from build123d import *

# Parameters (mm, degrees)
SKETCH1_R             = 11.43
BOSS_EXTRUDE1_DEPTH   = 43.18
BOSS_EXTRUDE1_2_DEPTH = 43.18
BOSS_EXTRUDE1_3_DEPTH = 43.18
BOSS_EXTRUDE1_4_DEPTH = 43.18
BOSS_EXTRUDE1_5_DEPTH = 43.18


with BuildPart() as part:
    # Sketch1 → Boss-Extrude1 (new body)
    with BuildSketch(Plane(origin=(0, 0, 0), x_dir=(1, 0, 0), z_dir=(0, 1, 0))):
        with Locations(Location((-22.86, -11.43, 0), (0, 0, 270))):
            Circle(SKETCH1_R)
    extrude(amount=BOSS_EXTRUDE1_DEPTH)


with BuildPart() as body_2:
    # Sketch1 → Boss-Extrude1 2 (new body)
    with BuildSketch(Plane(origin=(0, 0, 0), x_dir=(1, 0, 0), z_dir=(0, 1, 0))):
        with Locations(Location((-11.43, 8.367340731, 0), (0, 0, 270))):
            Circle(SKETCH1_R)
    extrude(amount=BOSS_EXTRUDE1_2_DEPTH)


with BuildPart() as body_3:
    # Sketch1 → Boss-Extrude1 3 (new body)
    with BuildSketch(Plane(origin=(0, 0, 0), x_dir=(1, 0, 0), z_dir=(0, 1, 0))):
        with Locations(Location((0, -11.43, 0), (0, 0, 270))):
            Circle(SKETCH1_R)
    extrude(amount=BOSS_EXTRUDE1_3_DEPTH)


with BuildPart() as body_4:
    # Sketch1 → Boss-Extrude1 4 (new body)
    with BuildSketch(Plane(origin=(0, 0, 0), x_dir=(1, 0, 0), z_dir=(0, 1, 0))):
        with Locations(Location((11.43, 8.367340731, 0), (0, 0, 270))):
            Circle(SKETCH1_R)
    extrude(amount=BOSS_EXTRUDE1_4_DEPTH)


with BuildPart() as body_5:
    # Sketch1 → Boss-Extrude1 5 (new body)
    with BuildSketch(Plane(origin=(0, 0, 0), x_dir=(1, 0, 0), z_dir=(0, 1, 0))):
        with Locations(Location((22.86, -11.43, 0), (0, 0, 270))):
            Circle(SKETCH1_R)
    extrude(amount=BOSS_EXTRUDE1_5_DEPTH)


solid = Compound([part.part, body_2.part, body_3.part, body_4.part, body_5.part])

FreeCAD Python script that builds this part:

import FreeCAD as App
import Part
import Sketcher
Q = App.Units.Quantity

doc = App.newDocument("Part")
body = doc.addObject("PartDesign::Body", "Body")

sketch1 = body.newObject("Sketcher::SketchObject", "Sketch")
sketch1.AttachmentSupport = (doc.getObject("XZ_Plane"), [""])
sketch1.MapMode = "FlatFace"
sketch1.addGeometry(Part.Circle(App.Vector(-23, 11, 0), App.Vector(0, 0, 1), 11), False)
sketch1.addConstraint([
    Sketcher.Constraint("Diameter", 0, Q("0.9 in")),
    Sketcher.Constraint("DistanceX", 0, 3, -1, 1, Q("0.9 in")),
    Sketcher.Constraint("DistanceY", -1, 1, 0, 3, Q("0.45 in")),
])
pad1 = body.newObject("PartDesign::Pad", "Pad")
pad1.Profile = sketch1
pad1.Length = Q("1.7 in")
pad1.Reversed = True
body2 = doc.addObject("PartDesign::Body", "Body001")

sketch2 = body2.newObject("Sketcher::SketchObject", "Sketch001")
sketch2.AttachmentSupport = (doc.getObject("XZ_Plane001"), [""])
sketch2.MapMode = "FlatFace"
sketch2.addGeometry(Part.Circle(App.Vector(-11, -8, 0), App.Vector(0, 0, 1), 11), False)
sketch2.addConstraint([
    Sketcher.Constraint("Diameter", 0, Q("0.9 in")),
    Sketcher.Constraint("DistanceX", 0, 3, -1, 1, Q("0.45 in")),
    Sketcher.Constraint("DistanceY", 0, 3, -1, 1, Q("8.367341 mm")),
])
pad2 = body2.newObject("PartDesign::Pad", "Pad001")
pad2.Profile = sketch2
pad2.Length = Q("1.7 in")
pad2.Reversed = True
body3 = doc.addObject("PartDesign::Body", "Body002")

sketch3 = body3.newObject("Sketcher::SketchObject", "Sketch002")
sketch3.AttachmentSupport = (doc.getObject("XZ_Plane002"), [""])
sketch3.MapMode = "FlatFace"
sketch3.addGeometry(Part.Circle(App.Vector(0, 11, 0), App.Vector(0, 0, 1), 11), False)
sketch3.addConstraint([
    Sketcher.Constraint("PointOnObject", 0, 3, -2),
    Sketcher.Constraint("Diameter", 0, Q("0.9 in")),
    Sketcher.Constraint("DistanceY", -1, 1, 0, 3, Q("0.45 in")),
])
pad3 = body3.newObject("PartDesign::Pad", "Pad002")
pad3.Profile = sketch3
pad3.Length = Q("1.7 in")
pad3.Reversed = True
body4 = doc.addObject("PartDesign::Body", "Body003")

sketch4 = body4.newObject("Sketcher::SketchObject", "Sketch003")
sketch4.AttachmentSupport = (doc.getObject("XZ_Plane003"), [""])
sketch4.MapMode = "FlatFace"
sketch4.addGeometry(Part.Circle(App.Vector(11, -8, 0), App.Vector(0, 0, 1), 11), False)
sketch4.addConstraint([
    Sketcher.Constraint("Diameter", 0, Q("0.9 in")),
    Sketcher.Constraint("DistanceX", -1, 1, 0, 3, Q("0.45 in")),
    Sketcher.Constraint("DistanceY", 0, 3, -1, 1, Q("8.367341 mm")),
])
pad4 = body4.newObject("PartDesign::Pad", "Pad003")
pad4.Profile = sketch4
pad4.Length = Q("1.7 in")
pad4.Reversed = True
body5 = doc.addObject("PartDesign::Body", "Body004")

sketch5 = body5.newObject("Sketcher::SketchObject", "Sketch004")
sketch5.AttachmentSupport = (doc.getObject("XZ_Plane004"), [""])
sketch5.MapMode = "FlatFace"
sketch5.addGeometry(Part.Circle(App.Vector(23, 11, 0), App.Vector(0, 0, 1), 11), False)
sketch5.addConstraint([
    Sketcher.Constraint("Diameter", 0, Q("0.9 in")),
    Sketcher.Constraint("DistanceX", -1, 1, 0, 3, Q("0.9 in")),
    Sketcher.Constraint("DistanceY", -1, 1, 0, 3, Q("0.45 in")),
])
pad5 = body5.newObject("PartDesign::Pad", "Pad004")
pad5.Profile = sketch5
pad5.Length = Q("1.7 in")
pad5.Reversed = True

doc.recompute()
